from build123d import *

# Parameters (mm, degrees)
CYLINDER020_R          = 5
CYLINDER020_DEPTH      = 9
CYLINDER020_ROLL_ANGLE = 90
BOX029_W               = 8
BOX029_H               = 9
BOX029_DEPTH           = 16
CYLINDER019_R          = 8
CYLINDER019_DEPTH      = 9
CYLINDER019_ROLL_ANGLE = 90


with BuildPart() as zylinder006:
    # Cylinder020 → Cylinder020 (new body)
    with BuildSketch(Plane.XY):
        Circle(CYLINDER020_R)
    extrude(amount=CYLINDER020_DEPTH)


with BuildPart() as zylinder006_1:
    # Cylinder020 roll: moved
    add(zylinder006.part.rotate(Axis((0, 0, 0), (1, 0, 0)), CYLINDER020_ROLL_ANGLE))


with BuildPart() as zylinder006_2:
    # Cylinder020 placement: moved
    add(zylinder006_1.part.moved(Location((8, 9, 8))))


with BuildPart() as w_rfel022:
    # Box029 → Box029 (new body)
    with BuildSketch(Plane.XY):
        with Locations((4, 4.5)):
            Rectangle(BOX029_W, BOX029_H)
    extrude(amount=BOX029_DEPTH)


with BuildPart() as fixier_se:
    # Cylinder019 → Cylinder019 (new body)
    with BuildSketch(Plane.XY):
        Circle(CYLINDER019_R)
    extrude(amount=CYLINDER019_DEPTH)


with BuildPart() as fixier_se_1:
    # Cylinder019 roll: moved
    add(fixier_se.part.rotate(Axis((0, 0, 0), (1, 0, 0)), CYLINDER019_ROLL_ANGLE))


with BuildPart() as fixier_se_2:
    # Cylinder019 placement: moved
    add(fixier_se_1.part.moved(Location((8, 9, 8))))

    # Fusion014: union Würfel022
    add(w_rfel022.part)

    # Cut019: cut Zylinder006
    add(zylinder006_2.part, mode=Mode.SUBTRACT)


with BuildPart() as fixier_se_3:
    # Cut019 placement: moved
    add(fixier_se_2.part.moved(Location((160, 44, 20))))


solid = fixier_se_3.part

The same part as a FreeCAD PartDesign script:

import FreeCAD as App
import Part
import Sketcher
from FreeCAD import Vector

doc = App.newDocument("Part")
body = doc.addObject("PartDesign::Body", "Body")

# Sketch on XY plane
sketch1 = body.newObject("Sketcher::SketchObject", "Sketch")
sketch1.AttachmentSupport = (doc.getObject("XY_Plane"), [""])
sketch1.MapMode = "FlatFace"
sketch1.addGeometry(Part.Circle(Vector(0, 0, 0), Vector(0, 0, 1), 5), False)
sketch1.addConstraint(Sketcher.Constraint("Coincident", 0, 3, -1, 1))
sketch1.addConstraint(Sketcher.Constraint("Diameter", 0, 10.0))
pad1 = body.newObject("PartDesign::Pad", "Pad")
pad1.Profile = sketch1
pad1.Length = 9
body2 = doc.addObject("PartDesign::Body", "Body001")
doc.recompute()

body.Placement = App.Placement(Vector(0, 0, 0), App.Rotation(Vector(1, 0, 0), 90))
boolean = body2.newObject("PartDesign::Boolean", "Boolean")
boolean.Type = "Fuse"
boolean.addObjects([body])
body3 = doc.addObject("PartDesign::Body", "Body002")
doc.recompute()

body2.Placement = App.Placement(Vector(8, 9, 8), App.Rotation(Vector(0, 0, 1), 0))
boolean2 = body3.newObject("PartDesign::Boolean", "Boolean001")
boolean2.Type = "Fuse"
boolean2.addObjects([body2])
body4 = doc.addObject("PartDesign::Body", "Body003")

# Sketch on XY plane
sketch2 = body4.newObject("Sketcher::SketchObject", "Sketch001")
sketch2.AttachmentSupport = (doc.getObject("XY_Plane003"), [""])
sketch2.MapMode = "FlatFace"
sketch2.addGeometry(Part.LineSegment(Vector(0, 9, 0), Vector(0, 0, 0)), False)
sketch2.addGeometry(Part.LineSegment(Vector(0, 0, 0), Vector(8, 0, 0)), False)
sketch2.addGeometry(Part.LineSegment(Vector(8, 0, 0), Vector(8, 9, 0)), False)
sketch2.addGeometry(Part.LineSegment(Vector(8, 9, 0), Vector(0, 9, 0)), False)
sketch2.addConstraint(Sketcher.Constraint("Coincident", 0, 2, 1, 1))
sketch2.addConstraint(Sketcher.Constraint("Coincident", 1, 2, 2, 1))
sketch2.addConstraint(Sketcher.Constraint("Coincident", 2, 2, 3, 1))
sketch2.addConstraint(Sketcher.Constraint("Coincident", 3, 2, 0, 1))
sketch2.addConstraint(Sketcher.Constraint("Vertical", 0))
sketch2.addConstraint(Sketcher.Constraint("Horizontal", 1))
sketch2.addConstraint(Sketcher.Constraint("Vertical", 2))
sketch2.addConstraint(Sketcher.Constraint("Horizontal", 3))
sketch2.addConstraint(Sketcher.Constraint("Coincident", 0, 2, -1, 1))
sketch2.addConstraint(Sketcher.Constraint("DistanceX", 1, 1, 1, 2, 8.0))
sketch2.addConstraint(Sketcher.Constraint("DistanceY", 0, 2, 0, 1, 9.0))
pad2 = body4.newObject("PartDesign::Pad", "Pad001")
pad2.Profile = sketch2
pad2.Length = 16
body5 = doc.addObject("PartDesign::Body", "Body004")

# Sketch on XY plane
sketch3 = body5.newObject("Sketcher::SketchObject", "Sketch002")
sketch3.AttachmentSupport = (doc.getObject("XY_Plane004"), [""])
sketch3.MapMode = "FlatFace"
sketch3.addGeometry(Part.Circle(Vector(0, 0, 0), Vector(0, 0, 1), 8), False)
sketch3.addConstraint(Sketcher.Constraint("Coincident", 0, 3, -1, 1))
sketch3.addConstraint(Sketcher.Constraint("Diameter", 0, 16.0))
pad3 = body5.newObject("PartDesign::Pad", "Pad002")
pad3.Profile = sketch3
pad3.Length = 9
body6 = doc.addObject("PartDesign::Body", "Body005")
doc.recompute()

body5.Placement = App.Placement(Vector(0, 0, 0), App.Rotation(Vector(1, 0, 0), 90))
boolean3 = body6.newObject("PartDesign::Boolean", "Boolean002")
boolean3.Type = "Fuse"
boolean3.addObjects([body5])
body7 = doc.addObject("PartDesign::Body", "Body006")
doc.recompute()

body6.Placement = App.Placement(Vector(8, 9, 8), App.Rotation(Vector(0, 0, 1), 0))
boolean4 = body7.newObject("PartDesign::Boolean", "Boolean003")
boolean4.Type = "Fuse"
boolean4.addObjects([body6])
doc.recompute()

boolean5 = body7.newObject("PartDesign::Boolean", "Boolean004")
boolean5.Type = "Fuse"
boolean5.addObjects([body4])
doc.recompute()

boolean6 = body7.newObject("PartDesign::Boolean", "Boolean005")
boolean6.Type = "Cut"
boolean6.addObjects([body3])
body8 = doc.addObject("PartDesign::Body", "Body007")
doc.recompute()

body7.Placement = App.Placement(Vector(160, 44, 20), App.Rotation(Vector(0, 0, 1), 0))
boolean7 = body8.newObject("PartDesign::Boolean", "Boolean006")
boolean7.Type = "Fuse"
boolean7.addObjects([body7])

doc.recompute()
